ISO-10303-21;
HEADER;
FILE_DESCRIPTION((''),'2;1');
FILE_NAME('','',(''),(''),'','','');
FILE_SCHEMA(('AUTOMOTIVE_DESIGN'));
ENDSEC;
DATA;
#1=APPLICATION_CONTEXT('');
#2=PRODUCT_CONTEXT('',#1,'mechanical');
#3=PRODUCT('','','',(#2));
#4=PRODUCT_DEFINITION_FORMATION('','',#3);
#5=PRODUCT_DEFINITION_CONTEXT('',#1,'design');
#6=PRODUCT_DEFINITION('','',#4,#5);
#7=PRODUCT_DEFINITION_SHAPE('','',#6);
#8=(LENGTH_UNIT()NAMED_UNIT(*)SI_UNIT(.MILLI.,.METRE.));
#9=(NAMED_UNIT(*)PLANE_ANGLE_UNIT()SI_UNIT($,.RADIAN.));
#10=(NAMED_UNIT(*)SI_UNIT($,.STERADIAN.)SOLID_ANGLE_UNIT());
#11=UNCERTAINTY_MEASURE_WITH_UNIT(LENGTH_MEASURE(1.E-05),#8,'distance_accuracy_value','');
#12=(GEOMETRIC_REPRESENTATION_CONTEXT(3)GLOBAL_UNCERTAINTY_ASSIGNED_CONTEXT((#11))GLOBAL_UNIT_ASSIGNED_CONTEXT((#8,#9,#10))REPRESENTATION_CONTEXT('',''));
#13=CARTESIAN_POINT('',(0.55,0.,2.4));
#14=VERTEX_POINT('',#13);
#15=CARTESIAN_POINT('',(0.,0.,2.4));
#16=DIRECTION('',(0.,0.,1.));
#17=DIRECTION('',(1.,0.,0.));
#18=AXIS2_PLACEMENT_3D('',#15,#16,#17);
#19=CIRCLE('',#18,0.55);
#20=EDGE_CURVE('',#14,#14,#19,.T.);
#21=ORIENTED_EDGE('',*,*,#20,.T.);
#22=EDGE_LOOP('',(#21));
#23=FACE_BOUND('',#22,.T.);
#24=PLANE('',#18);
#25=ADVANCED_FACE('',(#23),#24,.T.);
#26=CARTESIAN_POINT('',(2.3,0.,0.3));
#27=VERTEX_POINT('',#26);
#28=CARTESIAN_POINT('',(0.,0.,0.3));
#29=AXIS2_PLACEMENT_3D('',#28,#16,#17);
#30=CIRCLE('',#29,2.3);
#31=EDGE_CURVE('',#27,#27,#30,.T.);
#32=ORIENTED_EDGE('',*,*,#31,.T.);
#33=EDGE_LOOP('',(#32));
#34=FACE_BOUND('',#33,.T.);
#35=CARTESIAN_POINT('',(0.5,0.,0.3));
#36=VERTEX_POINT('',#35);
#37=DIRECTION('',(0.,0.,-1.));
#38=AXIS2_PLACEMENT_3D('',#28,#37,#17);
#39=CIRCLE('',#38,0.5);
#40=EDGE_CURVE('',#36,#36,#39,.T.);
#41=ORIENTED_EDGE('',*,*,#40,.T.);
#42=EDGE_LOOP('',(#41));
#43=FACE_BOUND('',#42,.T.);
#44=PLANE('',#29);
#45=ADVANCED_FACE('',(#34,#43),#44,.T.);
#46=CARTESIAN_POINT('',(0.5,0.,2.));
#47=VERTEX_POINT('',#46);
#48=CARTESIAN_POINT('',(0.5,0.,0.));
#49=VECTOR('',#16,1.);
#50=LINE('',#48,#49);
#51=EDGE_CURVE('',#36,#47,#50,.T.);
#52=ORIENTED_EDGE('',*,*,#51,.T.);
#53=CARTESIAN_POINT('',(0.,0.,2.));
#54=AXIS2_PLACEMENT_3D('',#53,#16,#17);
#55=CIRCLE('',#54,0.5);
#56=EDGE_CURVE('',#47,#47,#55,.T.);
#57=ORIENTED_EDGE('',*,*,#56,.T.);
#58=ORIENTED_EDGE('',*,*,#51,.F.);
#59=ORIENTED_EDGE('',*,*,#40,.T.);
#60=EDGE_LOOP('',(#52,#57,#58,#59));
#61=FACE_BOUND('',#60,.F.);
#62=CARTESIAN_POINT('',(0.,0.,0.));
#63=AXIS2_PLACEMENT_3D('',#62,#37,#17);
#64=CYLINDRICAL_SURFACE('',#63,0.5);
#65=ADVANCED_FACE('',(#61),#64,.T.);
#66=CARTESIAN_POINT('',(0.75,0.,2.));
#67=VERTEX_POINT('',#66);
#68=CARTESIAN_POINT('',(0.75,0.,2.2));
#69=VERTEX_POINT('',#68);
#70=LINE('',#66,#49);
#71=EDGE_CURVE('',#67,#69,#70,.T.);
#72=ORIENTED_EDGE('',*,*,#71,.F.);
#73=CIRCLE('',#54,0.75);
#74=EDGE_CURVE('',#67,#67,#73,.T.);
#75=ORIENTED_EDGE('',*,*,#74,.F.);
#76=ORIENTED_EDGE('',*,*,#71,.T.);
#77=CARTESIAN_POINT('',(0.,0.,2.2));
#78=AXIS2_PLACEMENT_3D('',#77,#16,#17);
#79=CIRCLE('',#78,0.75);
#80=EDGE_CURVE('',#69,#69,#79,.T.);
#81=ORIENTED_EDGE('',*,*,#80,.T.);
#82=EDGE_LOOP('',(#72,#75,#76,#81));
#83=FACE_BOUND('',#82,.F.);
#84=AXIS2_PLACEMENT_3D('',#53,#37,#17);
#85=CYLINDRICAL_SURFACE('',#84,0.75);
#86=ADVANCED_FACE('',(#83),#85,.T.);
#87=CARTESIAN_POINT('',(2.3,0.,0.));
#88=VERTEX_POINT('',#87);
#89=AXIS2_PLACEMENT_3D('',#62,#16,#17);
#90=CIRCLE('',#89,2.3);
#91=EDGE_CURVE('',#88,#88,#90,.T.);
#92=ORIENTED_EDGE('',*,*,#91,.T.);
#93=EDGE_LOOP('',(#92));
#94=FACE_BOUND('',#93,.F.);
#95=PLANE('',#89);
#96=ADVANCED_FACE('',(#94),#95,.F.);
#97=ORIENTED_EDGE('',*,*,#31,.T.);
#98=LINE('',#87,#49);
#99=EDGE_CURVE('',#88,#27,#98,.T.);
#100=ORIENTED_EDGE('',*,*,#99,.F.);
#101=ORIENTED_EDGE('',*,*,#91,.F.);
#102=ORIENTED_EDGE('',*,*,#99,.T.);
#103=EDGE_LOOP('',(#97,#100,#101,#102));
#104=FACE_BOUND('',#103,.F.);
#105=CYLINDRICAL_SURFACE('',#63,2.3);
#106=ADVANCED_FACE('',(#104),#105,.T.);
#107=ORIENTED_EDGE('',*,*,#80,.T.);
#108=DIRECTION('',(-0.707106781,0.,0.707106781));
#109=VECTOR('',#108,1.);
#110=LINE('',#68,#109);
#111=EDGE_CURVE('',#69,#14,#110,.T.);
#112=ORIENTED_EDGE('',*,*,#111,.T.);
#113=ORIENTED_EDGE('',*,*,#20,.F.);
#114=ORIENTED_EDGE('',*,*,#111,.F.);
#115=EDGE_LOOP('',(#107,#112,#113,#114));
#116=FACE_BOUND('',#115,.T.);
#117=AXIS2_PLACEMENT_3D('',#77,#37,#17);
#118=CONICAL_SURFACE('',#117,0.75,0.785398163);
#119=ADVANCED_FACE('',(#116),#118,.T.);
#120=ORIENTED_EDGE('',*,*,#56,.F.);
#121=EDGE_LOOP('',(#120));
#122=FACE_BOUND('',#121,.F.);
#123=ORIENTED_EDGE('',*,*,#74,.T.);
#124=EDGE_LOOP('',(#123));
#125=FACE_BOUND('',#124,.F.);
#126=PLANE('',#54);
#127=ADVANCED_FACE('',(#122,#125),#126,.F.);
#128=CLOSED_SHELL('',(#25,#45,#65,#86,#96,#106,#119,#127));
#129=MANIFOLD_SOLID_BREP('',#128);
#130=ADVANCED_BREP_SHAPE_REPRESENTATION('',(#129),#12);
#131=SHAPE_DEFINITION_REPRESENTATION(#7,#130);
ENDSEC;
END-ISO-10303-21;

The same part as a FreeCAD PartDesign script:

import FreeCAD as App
import Part
import Sketcher
from FreeCAD import Vector
Q = App.Units.Quantity


def edges_at(feature, points):
    """Names of the edges that pass closest to the given points."""
    edges = feature.Shape.Edges
    near = lambda p: min(range(len(edges)), key=lambda i: edges[i].distToShape(Part.Vertex(*p))[0])
    return sorted({f"Edge{near(p) + 1}" for p in points})

doc = App.newDocument("Part")
body = doc.addObject("PartDesign::Body", "Body")

# Sketch on XY plane
sketch1 = body.newObject("Sketcher::SketchObject", "Sketch")
sketch1.AttachmentSupport = (doc.getObject("XY_Plane"), [""])
sketch1.MapMode = "FlatFace"
sketch1.addGeometry(Part.Circle(Vector(0, 0, 0), Vector(0, 0, 1), 2.3), False)
sketch1.addConstraint([
    Sketcher.Constraint("Coincident", 0, 3, -1, 1),
    Sketcher.Constraint("Diameter", 0, Q("4.6 mm")),
])
pad1 = body.newObject("PartDesign::Pad", "Pad")
pad1.Profile = sketch1
pad1.Length = 0.3

# Sketch on XY plane
sketch2 = body.newObject("Sketcher::SketchObject", "Sketch001")
sketch2.AttachmentSupport = (doc.getObject("XY_Plane"), [""])
sketch2.MapMode = "FlatFace"
sketch2.addGeometry(Part.Circle(Vector(0, 0, 0), Vector(0, 0, 1), 0.5), False)
sketch2.addConstraint([
    Sketcher.Constraint("Coincident", 0, 3, -1, 1),
    Sketcher.Constraint("Diameter", 0, Q("1 mm")),
])
pad2 = body.newObject("PartDesign::Pad", "Pad001")
pad2.Profile = sketch2
pad2.Length = 2

# Sketch on XY plane
sketch3 = body.newObject("Sketcher::SketchObject", "Sketch002")
sketch3.AttachmentSupport = (doc.getObject("XY_Plane"), [""])
sketch3.MapMode = "FlatFace"
sketch3.AttachmentOffset = App.Placement(Vector(0, 0, 2), App.Rotation())
sketch3.addGeometry(Part.Circle(Vector(0, 0, 0), Vector(0, 0, 1), 0.8), False)
sketch3.addConstraint([
    Sketcher.Constraint("Coincident", 0, 3, -1, 1),
    Sketcher.Constraint("Diameter", 0, Q("1.5 mm")),
])
pad3 = body.newObject("PartDesign::Pad", "Pad002")
pad3.Profile = sketch3
pad3.Length = 0.4
doc.recompute()

chamfer = body.newObject("PartDesign::Chamfer", "Chamfer")
chamfer.Base = (pad3, edges_at(pad3, [(-0.75, 0, 2.4)]))
chamfer.Size = 0.2

doc.recompute()
